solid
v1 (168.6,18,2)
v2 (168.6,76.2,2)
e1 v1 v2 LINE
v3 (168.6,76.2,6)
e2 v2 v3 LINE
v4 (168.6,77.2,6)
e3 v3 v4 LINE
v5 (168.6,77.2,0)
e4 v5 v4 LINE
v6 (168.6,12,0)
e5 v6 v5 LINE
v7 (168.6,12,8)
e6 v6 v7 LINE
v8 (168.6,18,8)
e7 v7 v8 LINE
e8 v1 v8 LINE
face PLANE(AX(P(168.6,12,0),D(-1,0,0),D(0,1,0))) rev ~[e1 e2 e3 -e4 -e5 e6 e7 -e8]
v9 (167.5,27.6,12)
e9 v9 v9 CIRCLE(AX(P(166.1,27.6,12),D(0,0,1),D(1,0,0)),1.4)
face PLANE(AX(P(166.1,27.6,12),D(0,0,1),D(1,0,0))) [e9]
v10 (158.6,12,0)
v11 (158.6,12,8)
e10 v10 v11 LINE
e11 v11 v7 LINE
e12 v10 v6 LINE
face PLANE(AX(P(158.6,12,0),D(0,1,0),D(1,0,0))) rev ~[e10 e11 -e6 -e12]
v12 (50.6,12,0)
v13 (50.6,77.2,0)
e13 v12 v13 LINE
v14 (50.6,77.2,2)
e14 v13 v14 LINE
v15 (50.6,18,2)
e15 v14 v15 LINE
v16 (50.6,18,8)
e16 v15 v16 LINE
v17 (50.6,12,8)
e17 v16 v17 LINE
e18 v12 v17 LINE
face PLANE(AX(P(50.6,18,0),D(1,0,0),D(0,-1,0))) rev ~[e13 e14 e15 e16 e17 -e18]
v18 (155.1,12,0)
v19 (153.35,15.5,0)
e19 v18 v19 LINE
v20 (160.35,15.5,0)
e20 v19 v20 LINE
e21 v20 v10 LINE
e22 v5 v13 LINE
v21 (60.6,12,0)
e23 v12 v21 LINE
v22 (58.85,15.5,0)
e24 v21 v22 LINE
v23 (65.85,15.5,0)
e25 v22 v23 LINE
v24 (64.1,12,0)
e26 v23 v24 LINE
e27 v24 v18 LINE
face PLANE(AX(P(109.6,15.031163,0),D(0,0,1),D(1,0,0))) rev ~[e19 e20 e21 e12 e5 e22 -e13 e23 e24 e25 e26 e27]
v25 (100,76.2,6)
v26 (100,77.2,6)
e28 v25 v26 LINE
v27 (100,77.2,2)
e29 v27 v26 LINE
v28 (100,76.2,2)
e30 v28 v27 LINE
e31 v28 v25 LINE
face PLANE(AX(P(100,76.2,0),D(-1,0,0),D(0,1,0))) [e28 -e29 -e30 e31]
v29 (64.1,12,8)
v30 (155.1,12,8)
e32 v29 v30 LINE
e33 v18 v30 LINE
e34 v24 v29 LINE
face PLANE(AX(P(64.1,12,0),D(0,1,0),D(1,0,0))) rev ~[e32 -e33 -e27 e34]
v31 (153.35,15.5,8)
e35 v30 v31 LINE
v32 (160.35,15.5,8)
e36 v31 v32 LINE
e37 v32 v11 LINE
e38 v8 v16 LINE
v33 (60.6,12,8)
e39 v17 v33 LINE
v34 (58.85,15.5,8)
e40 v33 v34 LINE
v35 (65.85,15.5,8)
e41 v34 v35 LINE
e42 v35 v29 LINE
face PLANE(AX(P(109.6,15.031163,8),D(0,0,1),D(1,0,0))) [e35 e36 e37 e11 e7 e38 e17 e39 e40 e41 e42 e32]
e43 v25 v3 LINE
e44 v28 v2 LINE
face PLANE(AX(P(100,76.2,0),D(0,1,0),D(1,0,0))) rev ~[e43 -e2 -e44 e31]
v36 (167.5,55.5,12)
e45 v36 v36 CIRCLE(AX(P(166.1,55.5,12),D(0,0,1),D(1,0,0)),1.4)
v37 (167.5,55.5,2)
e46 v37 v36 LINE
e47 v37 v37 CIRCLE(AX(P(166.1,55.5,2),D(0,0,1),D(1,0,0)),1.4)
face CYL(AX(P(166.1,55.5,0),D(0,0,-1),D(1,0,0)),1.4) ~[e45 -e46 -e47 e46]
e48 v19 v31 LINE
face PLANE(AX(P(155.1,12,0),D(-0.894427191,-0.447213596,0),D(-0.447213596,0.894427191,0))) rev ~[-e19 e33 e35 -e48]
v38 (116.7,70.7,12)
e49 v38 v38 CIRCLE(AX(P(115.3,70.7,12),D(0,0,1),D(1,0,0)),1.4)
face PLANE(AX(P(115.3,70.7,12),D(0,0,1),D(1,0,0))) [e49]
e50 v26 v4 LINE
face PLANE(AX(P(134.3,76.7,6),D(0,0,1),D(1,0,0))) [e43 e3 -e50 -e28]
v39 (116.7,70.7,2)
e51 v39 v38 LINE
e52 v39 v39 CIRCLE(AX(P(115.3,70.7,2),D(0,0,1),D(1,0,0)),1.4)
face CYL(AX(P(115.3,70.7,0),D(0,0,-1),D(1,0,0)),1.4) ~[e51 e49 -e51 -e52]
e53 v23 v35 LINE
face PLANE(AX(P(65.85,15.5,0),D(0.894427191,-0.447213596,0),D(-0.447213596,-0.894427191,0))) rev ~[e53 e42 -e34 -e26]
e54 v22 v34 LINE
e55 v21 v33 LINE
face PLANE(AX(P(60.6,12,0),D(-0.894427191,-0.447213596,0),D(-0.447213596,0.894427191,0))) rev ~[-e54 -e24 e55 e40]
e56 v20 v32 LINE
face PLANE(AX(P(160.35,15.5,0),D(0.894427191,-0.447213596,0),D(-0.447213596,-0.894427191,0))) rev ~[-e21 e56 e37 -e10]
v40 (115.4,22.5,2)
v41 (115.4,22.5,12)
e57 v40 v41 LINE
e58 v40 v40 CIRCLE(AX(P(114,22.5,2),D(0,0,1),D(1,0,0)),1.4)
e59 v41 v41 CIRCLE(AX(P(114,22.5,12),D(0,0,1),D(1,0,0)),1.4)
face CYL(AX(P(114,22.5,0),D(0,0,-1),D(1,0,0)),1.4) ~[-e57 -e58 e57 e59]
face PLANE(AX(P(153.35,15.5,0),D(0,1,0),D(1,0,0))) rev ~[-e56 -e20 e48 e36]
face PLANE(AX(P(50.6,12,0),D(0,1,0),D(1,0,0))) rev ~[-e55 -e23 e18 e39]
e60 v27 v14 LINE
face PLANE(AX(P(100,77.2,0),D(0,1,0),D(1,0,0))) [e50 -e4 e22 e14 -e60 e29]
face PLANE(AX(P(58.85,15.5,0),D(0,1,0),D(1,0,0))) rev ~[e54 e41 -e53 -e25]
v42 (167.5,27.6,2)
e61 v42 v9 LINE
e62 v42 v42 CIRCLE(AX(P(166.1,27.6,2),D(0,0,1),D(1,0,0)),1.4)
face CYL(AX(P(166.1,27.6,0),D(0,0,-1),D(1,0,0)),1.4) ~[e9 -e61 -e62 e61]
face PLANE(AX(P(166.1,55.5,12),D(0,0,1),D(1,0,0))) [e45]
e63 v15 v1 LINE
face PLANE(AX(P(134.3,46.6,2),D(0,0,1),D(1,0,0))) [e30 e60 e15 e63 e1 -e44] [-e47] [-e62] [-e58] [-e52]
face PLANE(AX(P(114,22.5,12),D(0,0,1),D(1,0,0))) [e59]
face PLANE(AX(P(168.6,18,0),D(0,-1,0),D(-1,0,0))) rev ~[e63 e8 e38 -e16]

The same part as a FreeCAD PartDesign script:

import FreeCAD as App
import Part
import Sketcher
from FreeCAD import Vector


def add_polygon(sketch, points):
    """Adds a closed chain of lines whose ends are joined by coincident constraints."""
    first, n = sketch.GeometryCount, len(points)
    for a, b in zip(points, points[1:] + points[:1]):
        sketch.addGeometry(Part.LineSegment(App.Vector(*a, 0), App.Vector(*b, 0)), False)
    for i in range(n):
        sketch.addConstraint(Sketcher.Constraint("Coincident", first + i, 2, first + (i + 1) % n, 1))

doc = App.newDocument("Part")
body = doc.addObject("PartDesign::Body", "Body")

sketch1 = body.newObject("Sketcher::SketchObject", "Sketch")
sketch1.AttachmentSupport = (doc.getObject("XY_Plane"), [""])
sketch1.MapMode = "FlatFace"
add_polygon(sketch1, [(168.6, 76.2), (100, 76.2), (100, 77.2), (50.6, 77.2), (50.6, 18), (168.6, 18)])
sketch1.addGeometry(Part.Circle(Vector(114, 22.5, 0), Vector(0, 0, 1), 1.4), False)
sketch1.addGeometry(Part.Circle(Vector(166.1, 27.6, 0), Vector(0, 0, 1), 1.4), False)
sketch1.addGeometry(Part.Circle(Vector(115.3, 70.7, 0), Vector(0, 0, 1), 1.4), False)
sketch1.addGeometry(Part.Circle(Vector(166.1, 55.5, 0), Vector(0, 0, 1), 1.4), False)
sketch1.addConstraint([
    Sketcher.Constraint("Horizontal", 0),
    Sketcher.Constraint("Vertical", 1),
    Sketcher.Constraint("Horizontal", 2),
    Sketcher.Constraint("Vertical", 3),
    Sketcher.Constraint("Horizontal", 4),
    Sketcher.Constraint("Vertical", 5),
    Sketcher.Constraint("Equal", 6, 7),
    Sketcher.Constraint("Equal", 7, 8),
    Sketcher.Constraint("Equal", 8, 9),
    Sketcher.Constraint("Vertical", 7, 3, 9, 3),
    Sketcher.Constraint("Diameter", 6, 2.8),
    Sketcher.Constraint("DistanceX", 4, 1, 4, 2, 118.0),
    Sketcher.Constraint("DistanceY", 1, 1, 1, 2, 1.0),
    Sketcher.Constraint("DistanceX", 0, 2, 0, 1, 68.6),
    Sketcher.Constraint("DistanceY", 3, 2, 3, 1, 59.2),
    Sketcher.Constraint("DistanceX", -1, 1, 6, 3, 114.0),
    Sketcher.Constraint("DistanceX", -1, 1, 0, 2, 100.0),
    Sketcher.Constraint("DistanceY", -1, 1, 3, 2, 18.0),
    Sketcher.Constraint("DistanceY", 6, 3, 9, 3, 33.0),
    Sketcher.Constraint("DistanceY", -1, 1, 6, 3, 22.5),
    Sketcher.Constraint("DistanceX", -1, 1, 7, 3, 166.1),
    Sketcher.Constraint("DistanceY", -1, 1, 7, 3, 27.6),
    Sketcher.Constraint("DistanceX", -1, 1, 8, 3, 115.3),
    Sketcher.Constraint("DistanceY", -1, 1, 8, 3, 70.7),
])
pad1 = body.newObject("PartDesign::Pad", "Pad")
pad1.Profile = sketch1
pad1.Length = 2

sketch2 = body.newObject("Sketcher::SketchObject", "Sketch001")
sketch2.AttachmentSupport = (doc.getObject("XY_Plane"), [""])
sketch2.MapMode = "FlatFace"
sketch2.addGeometry([
    Part.Circle(Vector(115.3, 70.7, 0), Vector(0, 0, 1), 1.4),
    Part.Circle(Vector(166.1, 55.5, 0), Vector(0, 0, 1), 1.4),
    Part.Circle(Vector(166.1, 27.6, 0), Vector(0, 0, 1), 1.4),
    Part.Circle(Vector(114, 22.5, 0), Vector(0, 0, 1), 1.4),
], False)
sketch2.addConstraint([
    Sketcher.Constraint("Equal", 0, 1),
    Sketcher.Constraint("Equal", 1, 2),
    Sketcher.Constraint("Equal", 2, 3),
    Sketcher.Constraint("Vertical", 1, 3, 2, 3),
    Sketcher.Constraint("Diameter", 0, 2.8),
    Sketcher.Constraint("DistanceX", -1, 1, 3, 3, 114.0),
    Sketcher.Constraint("DistanceY", 3, 3, 1, 3, 33.0),
    Sketcher.Constraint("DistanceX", -1, 1, 0, 3, 115.3),
    Sketcher.Constraint("DistanceY", -1, 1, 0, 3, 70.7),
    Sketcher.Constraint("DistanceX", -1, 1, 1, 3, 166.1),
    Sketcher.Constraint("DistanceY", -1, 1, 1, 3, 55.5),
    Sketcher.Constraint("DistanceY", -1, 1, 2, 3, 27.6),
])
pad2 = body.newObject("PartDesign::Pad", "Pad001")
pad2.Profile = sketch2
pad2.Length = 12

sketch3 = body.newObject("Sketcher::SketchObject", "Sketch002")
sketch3.AttachmentSupport = (doc.getObject("XY_Plane"), [""])
sketch3.MapMode = "FlatFace"
add_polygon(sketch3, [(100, 77.2), (100, 76.2), (168.6, 76.2), (168.6, 77.2)])
sketch3.addConstraint([
    Sketcher.Constraint("Vertical", 0),
    Sketcher.Constraint("Horizontal", 1),
    Sketcher.Constraint("Vertical", 2),
    Sketcher.Constraint("Horizontal", 3),
    Sketcher.Constraint("DistanceY", 0, 2, 0, 1, 1.0),
    Sketcher.Constraint("DistanceX", 1, 1, 1, 2, 68.6),
    Sketcher.Constraint("DistanceX", -1, 1, 0, 2, 100.0),
    Sketcher.Constraint("DistanceY", -1, 1, 0, 2, 76.2),
])
pad3 = body.newObject("PartDesign::Pad", "Pad002")
pad3.Profile = sketch3
pad3.Length = 6

sketch4 = body.newObject("Sketcher::SketchObject", "Sketch003")
sketch4.AttachmentSupport = (doc.getObject("XY_Plane"), [""])
sketch4.MapMode = "FlatFace"
add_polygon(sketch4, [(168.6, 12), (168.6, 18), (50.6, 18), (50.6, 12), (60.6, 12), (58.85, 15.5), (65.85, 15.5), (64.1, 12), (155.1, 12), (153.35, 15.5), (160.35, 15.5), (158.6, 12)])
sketch4.addConstraint([
    Sketcher.Constraint("Vertical", 0),
    Sketcher.Constraint("Horizontal", 1),
    Sketcher.Constraint("Vertical", 2),
    Sketcher.Constraint("Horizontal", 3),
    Sketcher.Constraint("Horizontal", 5),
    Sketcher.Constraint("Horizontal", 7),
    Sketcher.Constraint("Horizontal", 9),
    Sketcher.Constraint("Horizontal", 11),
    Sketcher.Constraint("Parallel", 4, 8),
    Sketcher.Constraint("Parallel", 6, 10),
    Sketcher.Constraint("Horizontal", 3, 2, 6, 2),
    Sketcher.Constraint("Horizontal", 5, 2, 8, 2),
    Sketcher.Constraint("Horizontal", 7, 2, 10, 2),
    Sketcher.Constraint("Equal", 5, 9),
    Sketcher.Constraint("Equal", 3, 11),
    Sketcher.Constraint("Equal", 4, 6),
    Sketcher.Constraint("DistanceX", 1, 2, 1, 1, 118.0),
    Sketcher.Constraint("DistanceX", 3, 1, 3, 2, 10.0),
    Sketcher.Constraint("DistanceX", 5, 1, 5, 2, 7.0),
    Sketcher.Constraint("DistanceX", 7, 1, 7, 2, 91.0),
    Sketcher.Constraint("DistanceY", 0, 1, 0, 2, 6.0),
    Sketcher.Constraint("DistanceY", -1, 1, 0, 2, 18.0),
    Sketcher.Constraint("DistanceX", -1, 1, 0, 2, 168.6),
    Sketcher.Constraint("DistanceY", -1, 1, 4, 2, 15.5),
])
pad4 = body.newObject("PartDesign::Pad", "Pad003")
pad4.Profile = sketch4
pad4.Length = 8

doc.recompute()
